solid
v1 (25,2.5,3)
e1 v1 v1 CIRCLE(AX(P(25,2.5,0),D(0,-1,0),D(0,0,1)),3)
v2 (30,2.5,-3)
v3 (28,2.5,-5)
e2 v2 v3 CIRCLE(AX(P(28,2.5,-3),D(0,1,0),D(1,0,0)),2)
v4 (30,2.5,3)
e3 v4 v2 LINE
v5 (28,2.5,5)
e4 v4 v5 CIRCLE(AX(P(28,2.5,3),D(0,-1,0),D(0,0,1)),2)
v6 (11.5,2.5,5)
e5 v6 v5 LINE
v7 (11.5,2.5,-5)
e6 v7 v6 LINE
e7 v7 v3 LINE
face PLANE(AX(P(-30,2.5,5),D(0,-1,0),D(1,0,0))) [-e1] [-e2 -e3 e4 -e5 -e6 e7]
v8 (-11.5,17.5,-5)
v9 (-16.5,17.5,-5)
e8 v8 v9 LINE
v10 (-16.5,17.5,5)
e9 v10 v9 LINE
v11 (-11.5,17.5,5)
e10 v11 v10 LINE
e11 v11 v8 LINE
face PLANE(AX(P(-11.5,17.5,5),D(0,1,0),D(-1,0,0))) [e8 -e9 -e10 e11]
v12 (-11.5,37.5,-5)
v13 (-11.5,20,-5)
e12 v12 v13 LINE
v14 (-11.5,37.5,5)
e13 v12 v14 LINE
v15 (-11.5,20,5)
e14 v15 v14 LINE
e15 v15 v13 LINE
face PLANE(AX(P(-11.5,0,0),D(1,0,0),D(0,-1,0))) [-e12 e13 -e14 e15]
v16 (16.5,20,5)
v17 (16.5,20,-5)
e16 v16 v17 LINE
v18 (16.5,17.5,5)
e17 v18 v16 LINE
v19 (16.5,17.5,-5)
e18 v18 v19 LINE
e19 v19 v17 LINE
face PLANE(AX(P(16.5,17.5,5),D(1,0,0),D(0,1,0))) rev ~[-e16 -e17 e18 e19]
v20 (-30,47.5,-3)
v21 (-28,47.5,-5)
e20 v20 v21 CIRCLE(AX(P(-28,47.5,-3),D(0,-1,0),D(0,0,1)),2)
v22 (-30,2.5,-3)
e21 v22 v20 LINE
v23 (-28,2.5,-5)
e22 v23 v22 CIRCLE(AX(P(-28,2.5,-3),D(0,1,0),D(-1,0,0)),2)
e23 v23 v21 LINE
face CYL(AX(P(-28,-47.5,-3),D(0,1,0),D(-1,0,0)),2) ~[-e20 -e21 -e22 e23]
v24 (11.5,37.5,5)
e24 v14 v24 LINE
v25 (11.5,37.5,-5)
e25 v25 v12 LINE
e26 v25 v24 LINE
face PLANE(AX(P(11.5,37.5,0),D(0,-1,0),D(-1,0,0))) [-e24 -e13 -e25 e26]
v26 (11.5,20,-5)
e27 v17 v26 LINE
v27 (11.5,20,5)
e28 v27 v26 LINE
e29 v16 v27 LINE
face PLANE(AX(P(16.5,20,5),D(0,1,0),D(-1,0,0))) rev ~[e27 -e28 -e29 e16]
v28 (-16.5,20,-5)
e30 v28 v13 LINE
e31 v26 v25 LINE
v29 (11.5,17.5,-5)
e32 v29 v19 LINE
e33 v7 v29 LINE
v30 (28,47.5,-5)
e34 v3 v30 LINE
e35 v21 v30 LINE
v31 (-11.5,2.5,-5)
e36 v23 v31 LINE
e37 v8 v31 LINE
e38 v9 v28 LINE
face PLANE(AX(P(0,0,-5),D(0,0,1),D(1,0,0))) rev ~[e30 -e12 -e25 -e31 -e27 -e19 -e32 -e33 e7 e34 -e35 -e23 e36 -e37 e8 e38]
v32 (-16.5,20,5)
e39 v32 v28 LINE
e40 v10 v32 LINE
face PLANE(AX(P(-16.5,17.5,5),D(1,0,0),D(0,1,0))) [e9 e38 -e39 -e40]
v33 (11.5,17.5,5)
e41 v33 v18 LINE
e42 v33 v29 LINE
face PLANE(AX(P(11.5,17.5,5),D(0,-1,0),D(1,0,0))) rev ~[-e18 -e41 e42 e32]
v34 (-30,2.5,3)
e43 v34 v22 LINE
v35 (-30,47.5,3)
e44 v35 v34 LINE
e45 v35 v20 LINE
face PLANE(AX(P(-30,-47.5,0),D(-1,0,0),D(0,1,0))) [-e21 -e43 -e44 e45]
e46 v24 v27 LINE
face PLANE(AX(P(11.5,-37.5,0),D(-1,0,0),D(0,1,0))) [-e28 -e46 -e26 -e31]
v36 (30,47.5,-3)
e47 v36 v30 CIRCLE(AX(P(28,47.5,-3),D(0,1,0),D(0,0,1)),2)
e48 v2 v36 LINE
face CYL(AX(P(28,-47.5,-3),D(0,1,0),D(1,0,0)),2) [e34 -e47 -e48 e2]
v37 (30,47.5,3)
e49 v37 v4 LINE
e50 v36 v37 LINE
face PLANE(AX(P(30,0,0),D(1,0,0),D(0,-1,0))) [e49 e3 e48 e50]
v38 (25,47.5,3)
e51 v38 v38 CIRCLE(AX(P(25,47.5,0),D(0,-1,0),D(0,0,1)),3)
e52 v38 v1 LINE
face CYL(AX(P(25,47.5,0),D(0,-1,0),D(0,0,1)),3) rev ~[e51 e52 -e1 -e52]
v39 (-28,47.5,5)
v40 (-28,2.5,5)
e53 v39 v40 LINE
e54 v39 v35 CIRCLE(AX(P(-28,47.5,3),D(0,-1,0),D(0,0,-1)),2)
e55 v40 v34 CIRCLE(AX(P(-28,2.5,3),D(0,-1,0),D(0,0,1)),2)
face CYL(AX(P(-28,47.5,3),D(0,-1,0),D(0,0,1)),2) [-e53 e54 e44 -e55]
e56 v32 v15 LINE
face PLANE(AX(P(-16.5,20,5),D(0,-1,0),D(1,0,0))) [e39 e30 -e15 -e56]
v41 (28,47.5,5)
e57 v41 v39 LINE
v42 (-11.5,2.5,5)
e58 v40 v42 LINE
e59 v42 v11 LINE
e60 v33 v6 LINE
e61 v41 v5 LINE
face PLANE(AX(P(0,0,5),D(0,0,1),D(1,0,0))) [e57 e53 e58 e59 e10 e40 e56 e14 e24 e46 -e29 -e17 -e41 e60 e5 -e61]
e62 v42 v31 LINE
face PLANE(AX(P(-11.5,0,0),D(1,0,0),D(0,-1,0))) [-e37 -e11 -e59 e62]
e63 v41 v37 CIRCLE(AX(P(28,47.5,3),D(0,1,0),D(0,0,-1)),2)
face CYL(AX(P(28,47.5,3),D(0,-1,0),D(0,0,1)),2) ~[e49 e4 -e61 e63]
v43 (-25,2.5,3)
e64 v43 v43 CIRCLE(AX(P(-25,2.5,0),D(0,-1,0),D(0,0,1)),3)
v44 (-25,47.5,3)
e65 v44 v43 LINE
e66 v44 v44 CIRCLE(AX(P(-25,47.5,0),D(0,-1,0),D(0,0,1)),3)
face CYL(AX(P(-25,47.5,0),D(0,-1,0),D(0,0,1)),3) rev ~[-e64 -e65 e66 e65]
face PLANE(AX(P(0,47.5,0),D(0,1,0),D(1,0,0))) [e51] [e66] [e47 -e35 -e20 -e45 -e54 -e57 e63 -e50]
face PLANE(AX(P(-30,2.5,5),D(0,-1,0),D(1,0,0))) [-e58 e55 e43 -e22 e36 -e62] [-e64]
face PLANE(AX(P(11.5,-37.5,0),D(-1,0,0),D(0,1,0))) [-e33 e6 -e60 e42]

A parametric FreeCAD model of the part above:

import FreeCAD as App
import Part
import Sketcher
Q = App.Units.Quantity


def edges_at(feature, points):
    """Names of the edges that pass closest to the given points."""
    edges = feature.Shape.Edges
    near = lambda p: min(range(len(edges)), key=lambda i: edges[i].distToShape(Part.Vertex(*p))[0])
    return sorted({f"Edge{near(p) + 1}" for p in points})


def add_polygon(sketch, points):
    """Adds a closed chain of lines whose ends are joined by coincident constraints."""
    first, n = sketch.GeometryCount, len(points)
    for a, b in zip(points, points[1:] + points[:1]):
        sketch.addGeometry(Part.LineSegment(App.Vector(*a, 0), App.Vector(*b, 0)), False)
    for i in range(n):
        sketch.addConstraint(Sketcher.Constraint("Coincident", first + i, 2, first + (i + 1) % n, 1))

doc = App.newDocument("Part")
params = doc.addObject("Spreadsheet::Sheet", "Params")
for row, (alias, value) in enumerate([
    ("sketch1_width", "60 mm"),
    ("sketch1_width2", "23 mm"),
    ("sketch1_height", "95 mm"),
    ("pad1_length", "10 mm"),
    ("sketch2_diameter", "6 mm"),
    ("hole_diameter", "6 mm"),
    ("fillet_radius", "2 mm"),
    ("sketch3_width", "5 mm"),
    ("sketch3_height", "2.5 mm"),
    ("pocket1_length", "27.5 mm"),
    ("sketch4_height", "50 mm"),
    ("sketch4_width", "60 mm"),
    ("pocket2_length", "10 mm"),
], start=1):
    params.set(f"A{row}", alias)
    params.set(f"B{row}", "=" + value)
    params.setAlias(f"B{row}", alias)

body = doc.addObject("PartDesign::Body", "Body")

# Sketch on XY plane
sketch1 = body.newObject("Sketcher::SketchObject", "Sketch")
sketch1.AttachmentSupport = (doc.getObject("XY_Plane"), [""])
sketch1.MapMode = "FlatFace"
add_polygon(sketch1, [(30, -47.5), (30, 47.5), (-30, 47.5), (-30, -47.5)])  # lines 0-3
add_polygon(sketch1, [(11.5, -37.5), (-11.5, -37.5), (-11.5, 37.5), (11.5, 37.5)])  # lines 4-7
sketch1.addConstraint([
    Sketcher.Constraint("Vertical", 0),
    Sketcher.Constraint("Horizontal", 1),
    Sketcher.Constraint("Vertical", 2),
    Sketcher.Constraint("Horizontal", 3),
    Sketcher.Constraint("Horizontal", 4),
    Sketcher.Constraint("Vertical", 5),
    Sketcher.Constraint("Horizontal", 6),
    Sketcher.Constraint("Vertical", 7),
    Sketcher.Constraint("Symmetric", 0, 2, 2, 2, -1, 1),
    Sketcher.Constraint("Symmetric", 4, 2, 6, 2, -1, 1),
    Sketcher.Constraint("DistanceX", 1, 2, 1, 1, Q("60 mm")),
    Sketcher.Constraint("DistanceX", 4, 2, 4, 1, Q("23 mm")),
    Sketcher.Constraint("DistanceY", 0, 1, 0, 2, Q("95 mm")),
    Sketcher.Constraint("DistanceY", 2, 2, 4, 2, Q("10 mm")),
])
sketch1.setExpression("Constraints[18]", "Params.sketch1_width")
sketch1.setExpression("Constraints[19]", "Params.sketch1_width2")
sketch1.setExpression("Constraints[20]", "Params.sketch1_height")
pad1 = body.newObject("PartDesign::Pad", "Pad")
pad1.Profile = sketch1
pad1.setExpression("Length", "Params.pad1_length")
pad1.Midplane = True

# Sketch on XZ plane
sketch2 = body.newObject("Sketcher::SketchObject", "Sketch001")
sketch2.AttachmentSupport = (doc.getObject("XZ_Plane"), [""])
sketch2.MapMode = "FlatFace"
sketch2.AttachmentOffset = App.Placement(App.Vector(0, 0, -47.5), App.Rotation())
sketch2.addGeometry([
    Part.Circle(App.Vector(-25, 0, 0), App.Vector(0, 0, 1), 3),
    Part.Circle(App.Vector(25, 0, 0), App.Vector(0, 0, 1), 3),
], False)
sketch2.addConstraint([
    Sketcher.Constraint("Equal", 0, 1),
    Sketcher.Constraint("Symmetric", 0, 3, 1, 3, -1, 1),
    Sketcher.Constraint("PointOnObject", 0, 3, -1),
    Sketcher.Constraint("Diameter", 0, Q("6 mm")),
    Sketcher.Constraint("DistanceX", 0, 3, -1, 1, Q("25 mm")),
])
sketch2.setExpression("Constraints[3]", "Params.sketch2_diameter")
doc.recompute()
hole = body.newObject("PartDesign::Hole", "Hole")
hole.Profile = sketch2
hole.ThreadType = "None"
hole.setExpression("Diameter", "Params.hole_diameter")
hole.DepthType = "ThroughAll"
hole.Reversed = True
doc.recompute()

fillet = body.newObject("PartDesign::Fillet", "Fillet")
fillet.Base = (hole, edges_at(hole, [
    (-30, 0, 5),
    (-30, 0, -5),
    (30, 0, -5),
    (30, 0, 5),
]))
fillet.setExpression("Radius", "Params.fillet_radius")

# Sketch on XY plane
sketch3 = body.newObject("Sketcher::SketchObject", "Sketch002")
sketch3.AttachmentSupport = (doc.getObject("XY_Plane"), [""])
sketch3.MapMode = "FlatFace"
sketch3.AttachmentOffset = App.Placement(App.Vector(0, 0, 5), App.Rotation())
add_polygon(sketch3, [(16.5, 20), (11.5, 20), (11.5, 17.5), (16.5, 17.5)])  # lines 0-3
add_polygon(sketch3, [(-16.5, 17.5), (-11.5, 17.5), (-11.5, 20), (-16.5, 20)])  # lines 4-7
sketch3.addConstraint([
    Sketcher.Constraint("Horizontal", 0),
    Sketcher.Constraint("Vertical", 1),
    Sketcher.Constraint("Horizontal", 2),
    Sketcher.Constraint("Vertical", 3),
    Sketcher.Constraint("Horizontal", 4),
    Sketcher.Constraint("Vertical", 5),
    Sketcher.Constraint("Horizontal", 6),
    Sketcher.Constraint("Vertical", 7),
    Sketcher.Constraint("Symmetric", 1, 2, 4, 2, -2),
    Sketcher.Constraint("Symmetric", 3, 2, 6, 2, -2),
    Sketcher.Constraint("DistanceX", 0, 2, 0, 1, Q("5 mm")),
    Sketcher.Constraint("DistanceY", 1, 2, 1, 1, Q("2.5 mm")),
    Sketcher.Constraint("DistanceY", -1, 1, 0, 2, Q("20 mm")),
    Sketcher.Constraint("DistanceX", 4, 2, 1, 2, Q("23 mm")),
])
sketch3.setExpression("Constraints[18]", "Params.sketch3_width")
sketch3.setExpression("Constraints[19]", "Params.sketch3_height")
pocket1 = body.newObject("PartDesign::Pocket", "Pocket")
pocket1.Profile = sketch3
pocket1.setExpression("Length", "Params.pocket1_length")

# Sketch on XY plane
sketch4 = body.newObject("Sketcher::SketchObject", "Sketch003")
sketch4.AttachmentSupport = (doc.getObject("XY_Plane"), [""])
sketch4.MapMode = "FlatFace"
sketch4.AttachmentOffset = App.Placement(App.Vector(0, 0, 5), App.Rotation())
add_polygon(sketch4, [(-30, -47.5), (30, -47.5), (30, 2.5), (-30, 2.5)])  # lines 0-3
sketch4.addConstraint([
    Sketcher.Constraint("Horizontal", 0),
    Sketcher.Constraint("Vertical", 1),
    Sketcher.Constraint("Horizontal", 2),
    Sketcher.Constraint("Vertical", 3),
    Sketcher.Constraint("DistanceY", 1, 1, 1, 2, Q("50 mm")),
    Sketcher.Constraint("DistanceX", 0, 1, 0, 2, Q("60 mm")),
    Sketcher.Constraint("DistanceX", -1, 1, 0, 2, Q("30 mm")),
    Sketcher.Constraint("DistanceY", 0, 2, -1, 1, Q("47.5 mm")),
])
sketch4.setExpression("Constraints[8]", "Params.sketch4_height")
sketch4.setExpression("Constraints[9]", "Params.sketch4_width")
pocket2 = body.newObject("PartDesign::Pocket", "Pocket001")
pocket2.Profile = sketch4
pocket2.setExpression("Length", "Params.pocket2_length")

doc.recompute()
